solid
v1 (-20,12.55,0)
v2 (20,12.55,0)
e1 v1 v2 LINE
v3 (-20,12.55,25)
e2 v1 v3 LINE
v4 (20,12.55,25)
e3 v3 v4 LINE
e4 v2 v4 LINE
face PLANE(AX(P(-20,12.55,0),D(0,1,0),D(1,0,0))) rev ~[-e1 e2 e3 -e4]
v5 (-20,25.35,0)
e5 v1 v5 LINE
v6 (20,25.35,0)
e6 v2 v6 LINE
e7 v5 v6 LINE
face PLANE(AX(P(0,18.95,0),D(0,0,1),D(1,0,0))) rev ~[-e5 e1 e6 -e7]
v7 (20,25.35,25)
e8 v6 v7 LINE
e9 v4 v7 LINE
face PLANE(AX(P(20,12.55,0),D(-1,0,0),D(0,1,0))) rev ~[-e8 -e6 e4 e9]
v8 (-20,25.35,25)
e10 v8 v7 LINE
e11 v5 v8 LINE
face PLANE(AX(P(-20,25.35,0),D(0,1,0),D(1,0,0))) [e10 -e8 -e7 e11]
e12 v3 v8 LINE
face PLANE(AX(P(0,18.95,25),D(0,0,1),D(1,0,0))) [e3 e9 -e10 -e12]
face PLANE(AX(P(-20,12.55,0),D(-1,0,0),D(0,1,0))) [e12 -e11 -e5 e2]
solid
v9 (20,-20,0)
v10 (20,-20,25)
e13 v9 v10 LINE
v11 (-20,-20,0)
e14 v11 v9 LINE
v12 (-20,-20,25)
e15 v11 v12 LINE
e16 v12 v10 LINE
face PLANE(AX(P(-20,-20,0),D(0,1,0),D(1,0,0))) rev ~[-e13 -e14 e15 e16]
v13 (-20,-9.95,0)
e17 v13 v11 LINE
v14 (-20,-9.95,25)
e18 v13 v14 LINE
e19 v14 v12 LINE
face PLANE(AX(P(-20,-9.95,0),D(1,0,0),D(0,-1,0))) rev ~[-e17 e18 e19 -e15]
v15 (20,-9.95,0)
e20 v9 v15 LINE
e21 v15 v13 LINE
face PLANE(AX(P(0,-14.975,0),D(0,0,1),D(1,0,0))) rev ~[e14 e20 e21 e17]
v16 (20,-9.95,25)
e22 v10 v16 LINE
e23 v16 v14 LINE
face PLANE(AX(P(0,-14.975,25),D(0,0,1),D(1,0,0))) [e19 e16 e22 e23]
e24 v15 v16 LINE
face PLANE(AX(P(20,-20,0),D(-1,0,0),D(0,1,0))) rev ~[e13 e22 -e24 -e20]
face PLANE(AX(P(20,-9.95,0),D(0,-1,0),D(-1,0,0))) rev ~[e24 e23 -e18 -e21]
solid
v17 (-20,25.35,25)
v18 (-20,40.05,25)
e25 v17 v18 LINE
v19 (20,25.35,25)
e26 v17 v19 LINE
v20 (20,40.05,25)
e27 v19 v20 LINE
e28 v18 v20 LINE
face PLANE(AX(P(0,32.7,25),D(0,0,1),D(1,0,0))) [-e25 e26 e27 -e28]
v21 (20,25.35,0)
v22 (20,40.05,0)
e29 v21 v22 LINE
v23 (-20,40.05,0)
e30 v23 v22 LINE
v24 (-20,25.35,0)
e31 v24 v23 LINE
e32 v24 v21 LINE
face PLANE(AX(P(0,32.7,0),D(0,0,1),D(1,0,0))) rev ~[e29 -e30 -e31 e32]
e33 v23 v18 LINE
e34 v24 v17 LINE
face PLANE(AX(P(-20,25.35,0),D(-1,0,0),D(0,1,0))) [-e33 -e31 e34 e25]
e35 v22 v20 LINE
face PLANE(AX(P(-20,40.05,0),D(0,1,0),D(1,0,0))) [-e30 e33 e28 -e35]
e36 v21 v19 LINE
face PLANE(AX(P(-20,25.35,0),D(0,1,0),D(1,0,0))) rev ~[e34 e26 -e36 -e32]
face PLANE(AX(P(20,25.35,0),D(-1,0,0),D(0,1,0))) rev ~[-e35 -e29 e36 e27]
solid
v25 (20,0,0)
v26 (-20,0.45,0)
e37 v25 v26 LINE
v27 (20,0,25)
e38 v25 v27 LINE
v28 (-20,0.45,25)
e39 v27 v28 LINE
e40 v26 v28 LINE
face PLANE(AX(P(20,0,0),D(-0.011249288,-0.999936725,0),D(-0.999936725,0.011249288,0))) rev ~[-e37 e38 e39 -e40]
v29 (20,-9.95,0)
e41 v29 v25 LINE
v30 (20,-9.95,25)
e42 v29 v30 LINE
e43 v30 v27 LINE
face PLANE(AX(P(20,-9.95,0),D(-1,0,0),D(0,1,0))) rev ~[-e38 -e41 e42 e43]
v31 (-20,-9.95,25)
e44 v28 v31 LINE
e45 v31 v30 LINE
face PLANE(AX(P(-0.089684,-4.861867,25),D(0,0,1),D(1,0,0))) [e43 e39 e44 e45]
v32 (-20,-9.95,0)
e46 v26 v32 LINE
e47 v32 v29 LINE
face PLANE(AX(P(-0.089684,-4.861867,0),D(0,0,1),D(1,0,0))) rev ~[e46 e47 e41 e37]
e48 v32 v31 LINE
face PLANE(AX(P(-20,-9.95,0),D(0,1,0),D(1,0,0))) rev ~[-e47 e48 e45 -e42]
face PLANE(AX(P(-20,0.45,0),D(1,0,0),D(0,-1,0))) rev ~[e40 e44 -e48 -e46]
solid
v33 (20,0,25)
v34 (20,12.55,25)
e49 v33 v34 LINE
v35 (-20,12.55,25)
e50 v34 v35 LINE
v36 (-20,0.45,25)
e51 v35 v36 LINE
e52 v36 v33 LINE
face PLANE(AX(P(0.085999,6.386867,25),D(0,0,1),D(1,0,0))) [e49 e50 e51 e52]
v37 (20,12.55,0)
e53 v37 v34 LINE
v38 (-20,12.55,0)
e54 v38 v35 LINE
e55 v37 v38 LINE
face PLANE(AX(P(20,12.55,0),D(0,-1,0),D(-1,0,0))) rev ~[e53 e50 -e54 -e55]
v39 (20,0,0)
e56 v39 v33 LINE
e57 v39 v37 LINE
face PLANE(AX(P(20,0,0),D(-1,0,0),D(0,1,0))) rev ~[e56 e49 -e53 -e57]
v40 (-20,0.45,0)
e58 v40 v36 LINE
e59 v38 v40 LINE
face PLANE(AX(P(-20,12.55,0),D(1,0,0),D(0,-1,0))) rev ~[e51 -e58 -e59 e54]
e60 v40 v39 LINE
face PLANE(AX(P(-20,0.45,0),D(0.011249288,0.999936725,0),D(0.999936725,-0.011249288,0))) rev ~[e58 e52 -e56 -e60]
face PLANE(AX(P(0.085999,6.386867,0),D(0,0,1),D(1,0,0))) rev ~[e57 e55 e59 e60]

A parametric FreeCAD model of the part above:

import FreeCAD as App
import Part
import Sketcher

V = App.Vector

doc = App.newDocument("Part")
body = doc.addObject("PartDesign::Body", "Body")

sketch1 = body.newObject("Sketcher::SketchObject", "Sketch")
sketch1.AttachmentSupport = (doc.getObject("XY_Plane"), [""])
sketch1.MapMode = "FlatFace"
sketch1.addGeometry(Part.LineSegment(V(-20, 40, 0), V(-20, 25, 0)), False)
sketch1.addGeometry(Part.LineSegment(V(-20, 25, 0), V(20, 25, 0)), False)
sketch1.addGeometry(Part.LineSegment(V(20, 25, 0), V(20, 40, 0)), False)
sketch1.addGeometry(Part.LineSegment(V(20, 40, 0), V(-20, 40, 0)), False)
sketch1.addConstraint(Sketcher.Constraint("Coincident", 0, 2, 1, 1))
sketch1.addConstraint(Sketcher.Constraint("Coincident", 1, 2, 2, 1))
sketch1.addConstraint(Sketcher.Constraint("Coincident", 2, 2, 3, 1))
sketch1.addConstraint(Sketcher.Constraint("Coincident", 3, 2, 0, 1))
sketch1.addConstraint(Sketcher.Constraint("Vertical", 0))
sketch1.addConstraint(Sketcher.Constraint("Horizontal", 1))
sketch1.addConstraint(Sketcher.Constraint("Vertical", 2))
sketch1.addConstraint(Sketcher.Constraint("Horizontal", 3))
sketch1.addConstraint(Sketcher.Constraint("DistanceX", 1, 1, 1, 2, 40.0))
sketch1.addConstraint(Sketcher.Constraint("DistanceY", 0, 2, 0, 1, 14.7))
sketch1.addConstraint(Sketcher.Constraint("DistanceX", 0, 2, -1, 1, 20.0))
sketch1.addConstraint(Sketcher.Constraint("DistanceY", -1, 1, 0, 2, 25.35))
pad1 = body.newObject("PartDesign::Pad", "Pad")
pad1.Profile = sketch1
pad1.Length = 25
body2 = doc.addObject("PartDesign::Body", "Body001")

sketch2 = body2.newObject("Sketcher::SketchObject", "Sketch001")
sketch2.AttachmentSupport = (doc.getObject("XY_Plane001"), [""])
sketch2.MapMode = "FlatFace"
sketch2.addGeometry(Part.LineSegment(V(-20, 25, 0), V(-20, 13, 0)), False)
sketch2.addGeometry(Part.LineSegment(V(-20, 13, 0), V(20, 13, 0)), False)
sketch2.addGeometry(Part.LineSegment(V(20, 13, 0), V(20, 25, 0)), False)
sketch2.addGeometry(Part.LineSegment(V(20, 25, 0), V(-20, 25, 0)), False)
sketch2.addConstraint(Sketcher.Constraint("Coincident", 0, 2, 1, 1))
sketch2.addConstraint(Sketcher.Constraint("Coincident", 1, 2, 2, 1))
sketch2.addConstraint(Sketcher.Constraint("Coincident", 2, 2, 3, 1))
sketch2.addConstraint(Sketcher.Constraint("Coincident", 3, 2, 0, 1))
sketch2.addConstraint(Sketcher.Constraint("Vertical", 0))
sketch2.addConstraint(Sketcher.Constraint("Horizontal", 1))
sketch2.addConstraint(Sketcher.Constraint("Vertical", 2))
sketch2.addConstraint(Sketcher.Constraint("Horizontal", 3))
sketch2.addConstraint(Sketcher.Constraint("DistanceX", 1, 1, 1, 2, 40.0))
sketch2.addConstraint(Sketcher.Constraint("DistanceY", 0, 2, 0, 1, 12.8))
sketch2.addConstraint(Sketcher.Constraint("DistanceX", 0, 2, -1, 1, 20.0))
sketch2.addConstraint(Sketcher.Constraint("DistanceY", -1, 1, 0, 2, 12.55))
pad2 = body2.newObject("PartDesign::Pad", "Pad001")
pad2.Profile = sketch2
pad2.Length = 25
body3 = doc.addObject("PartDesign::Body", "Body002")

sketch3 = body3.newObject("Sketcher::SketchObject", "Sketch002")
sketch3.AttachmentSupport = (doc.getObject("XY_Plane002"), [""])
sketch3.MapMode = "FlatFace"
sketch3.addGeometry(Part.LineSegment(V(-20, 13, 0), V(-20, 0, 0)), False)
sketch3.addGeometry(Part.LineSegment(V(-20, 0, 0), V(20, 0, 0)), False)
sketch3.addGeometry(Part.LineSegment(V(20, 0, 0), V(20, 13, 0)), False)
sketch3.addGeometry(Part.LineSegment(V(20, 13, 0), V(-20, 13, 0)), False)
sketch3.addConstraint(Sketcher.Constraint("Coincident", 0, 2, 1, 1))
sketch3.addConstraint(Sketcher.Constraint("Coincident", 1, 2, 2, 1))
sketch3.addConstraint(Sketcher.Constraint("Coincident", 2, 2, 3, 1))
sketch3.addConstraint(Sketcher.Constraint("Coincident", 3, 2, 0, 1))
sketch3.addConstraint(Sketcher.Constraint("Vertical", 0))
sketch3.addConstraint(Sketcher.Constraint("Vertical", 2))
sketch3.addConstraint(Sketcher.Constraint("Horizontal", 3))
sketch3.addConstraint(Sketcher.Constraint("PointOnObject", 1, 2, -1))
sketch3.addConstraint(Sketcher.Constraint("DistanceX", 3, 2, 3, 1, 40.0))
sketch3.addConstraint(Sketcher.Constraint("DistanceY", 0, 2, 0, 1, 12.1))
sketch3.addConstraint(Sketcher.Constraint("DistanceX", 0, 2, -1, 1, 20.0))
sketch3.addConstraint(Sketcher.Constraint("DistanceY", 2, 1, 2, 2, 12.55))
pad3 = body3.newObject("PartDesign::Pad", "Pad002")
pad3.Profile = sketch3
pad3.Length = 25
body4 = doc.addObject("PartDesign::Body", "Body003")

sketch4 = body4.newObject("Sketcher::SketchObject", "Sketch003")
sketch4.AttachmentSupport = (doc.getObject("XY_Plane003"), [""])
sketch4.MapMode = "FlatFace"
sketch4.addGeometry(Part.LineSegment(V(-20, 0, 0), V(-20, -10, 0)), False)
sketch4.addGeometry(Part.LineSegment(V(-20, -10, 0), V(20, -10, 0)), False)
sketch4.addGeometry(Part.LineSegment(V(20, -10, 0), V(20, 0, 0)), False)
sketch4.addGeometry(Part.LineSegment(V(20, 0, 0), V(-20, 0, 0)), False)
sketch4.addConstraint(Sketcher.Constraint("Coincident", 0, 2, 1, 1))
sketch4.addConstraint(Sketcher.Constraint("Coincident", 1, 2, 2, 1))
sketch4.addConstraint(Sketcher.Constraint("Coincident", 2, 2, 3, 1))
sketch4.addConstraint(Sketcher.Constraint("Coincident", 3, 2, 0, 1))
sketch4.addConstraint(Sketcher.Constraint("Vertical", 0))
sketch4.addConstraint(Sketcher.Constraint("Horizontal", 1))
sketch4.addConstraint(Sketcher.Constraint("Vertical", 2))
sketch4.addConstraint(Sketcher.Constraint("PointOnObject", 2, 2, -1))
sketch4.addConstraint(Sketcher.Constraint("DistanceX", 1, 1, 1, 2, 40.0))
sketch4.addConstraint(Sketcher.Constraint("DistanceY", 0, 2, 0, 1, 10.4))
sketch4.addConstraint(Sketcher.Constraint("DistanceX", 0, 2, -1, 1, 20.0))
sketch4.addConstraint(Sketcher.Constraint("DistanceY", 2, 1, 2, 2, 9.95))
pad4 = body4.newObject("PartDesign::Pad", "Pad003")
pad4.Profile = sketch4
pad4.Length = 25
body5 = doc.addObject("PartDesign::Body", "Body004")

sketch5 = body5.newObject("Sketcher::SketchObject", "Sketch004")
sketch5.AttachmentSupport = (doc.getObject("XY_Plane004"), [""])
sketch5.MapMode = "FlatFace"
sketch5.addGeometry(Part.LineSegment(V(-20, -20, 0), V(20, -20, 0)), False)
sketch5.addGeometry(Part.LineSegment(V(20, -20, 0), V(20, -10, 0)), False)
sketch5.addGeometry(Part.LineSegment(V(20, -10, 0), V(-20, -10, 0)), False)
sketch5.addGeometry(Part.LineSegment(V(-20, -10, 0), V(-20, -20, 0)), False)
sketch5.addConstraint(Sketcher.Constraint("Coincident", 0, 2, 1, 1))
sketch5.addConstraint(Sketcher.Constraint("Coincident", 1, 2, 2, 1))
sketch5.addConstraint(Sketcher.Constraint("Coincident", 2, 2, 3, 1))
sketch5.addConstraint(Sketcher.Constraint("Coincident", 3, 2, 0, 1))
sketch5.addConstraint(Sketcher.Constraint("Horizontal", 0))
sketch5.addConstraint(Sketcher.Constraint("Vertical", 1))
sketch5.addConstraint(Sketcher.Constraint("Horizontal", 2))
sketch5.addConstraint(Sketcher.Constraint("Vertical", 3))
sketch5.addConstraint(Sketcher.Constraint("DistanceX", 0, 1, 0, 2, 40.0))
sketch5.addConstraint(Sketcher.Constraint("DistanceX", -1, 1, 0, 2, 20.0))
sketch5.addConstraint(Sketcher.Constraint("DistanceY", 0, 2, -1, 1, 20.0))
sketch5.addConstraint(Sketcher.Constraint("DistanceY", 1, 1, 1, 2, 10.05))
pad5 = body5.newObject("PartDesign::Pad", "Pad004")
pad5.Profile = sketch5
pad5.Length = 25

doc.recompute()
